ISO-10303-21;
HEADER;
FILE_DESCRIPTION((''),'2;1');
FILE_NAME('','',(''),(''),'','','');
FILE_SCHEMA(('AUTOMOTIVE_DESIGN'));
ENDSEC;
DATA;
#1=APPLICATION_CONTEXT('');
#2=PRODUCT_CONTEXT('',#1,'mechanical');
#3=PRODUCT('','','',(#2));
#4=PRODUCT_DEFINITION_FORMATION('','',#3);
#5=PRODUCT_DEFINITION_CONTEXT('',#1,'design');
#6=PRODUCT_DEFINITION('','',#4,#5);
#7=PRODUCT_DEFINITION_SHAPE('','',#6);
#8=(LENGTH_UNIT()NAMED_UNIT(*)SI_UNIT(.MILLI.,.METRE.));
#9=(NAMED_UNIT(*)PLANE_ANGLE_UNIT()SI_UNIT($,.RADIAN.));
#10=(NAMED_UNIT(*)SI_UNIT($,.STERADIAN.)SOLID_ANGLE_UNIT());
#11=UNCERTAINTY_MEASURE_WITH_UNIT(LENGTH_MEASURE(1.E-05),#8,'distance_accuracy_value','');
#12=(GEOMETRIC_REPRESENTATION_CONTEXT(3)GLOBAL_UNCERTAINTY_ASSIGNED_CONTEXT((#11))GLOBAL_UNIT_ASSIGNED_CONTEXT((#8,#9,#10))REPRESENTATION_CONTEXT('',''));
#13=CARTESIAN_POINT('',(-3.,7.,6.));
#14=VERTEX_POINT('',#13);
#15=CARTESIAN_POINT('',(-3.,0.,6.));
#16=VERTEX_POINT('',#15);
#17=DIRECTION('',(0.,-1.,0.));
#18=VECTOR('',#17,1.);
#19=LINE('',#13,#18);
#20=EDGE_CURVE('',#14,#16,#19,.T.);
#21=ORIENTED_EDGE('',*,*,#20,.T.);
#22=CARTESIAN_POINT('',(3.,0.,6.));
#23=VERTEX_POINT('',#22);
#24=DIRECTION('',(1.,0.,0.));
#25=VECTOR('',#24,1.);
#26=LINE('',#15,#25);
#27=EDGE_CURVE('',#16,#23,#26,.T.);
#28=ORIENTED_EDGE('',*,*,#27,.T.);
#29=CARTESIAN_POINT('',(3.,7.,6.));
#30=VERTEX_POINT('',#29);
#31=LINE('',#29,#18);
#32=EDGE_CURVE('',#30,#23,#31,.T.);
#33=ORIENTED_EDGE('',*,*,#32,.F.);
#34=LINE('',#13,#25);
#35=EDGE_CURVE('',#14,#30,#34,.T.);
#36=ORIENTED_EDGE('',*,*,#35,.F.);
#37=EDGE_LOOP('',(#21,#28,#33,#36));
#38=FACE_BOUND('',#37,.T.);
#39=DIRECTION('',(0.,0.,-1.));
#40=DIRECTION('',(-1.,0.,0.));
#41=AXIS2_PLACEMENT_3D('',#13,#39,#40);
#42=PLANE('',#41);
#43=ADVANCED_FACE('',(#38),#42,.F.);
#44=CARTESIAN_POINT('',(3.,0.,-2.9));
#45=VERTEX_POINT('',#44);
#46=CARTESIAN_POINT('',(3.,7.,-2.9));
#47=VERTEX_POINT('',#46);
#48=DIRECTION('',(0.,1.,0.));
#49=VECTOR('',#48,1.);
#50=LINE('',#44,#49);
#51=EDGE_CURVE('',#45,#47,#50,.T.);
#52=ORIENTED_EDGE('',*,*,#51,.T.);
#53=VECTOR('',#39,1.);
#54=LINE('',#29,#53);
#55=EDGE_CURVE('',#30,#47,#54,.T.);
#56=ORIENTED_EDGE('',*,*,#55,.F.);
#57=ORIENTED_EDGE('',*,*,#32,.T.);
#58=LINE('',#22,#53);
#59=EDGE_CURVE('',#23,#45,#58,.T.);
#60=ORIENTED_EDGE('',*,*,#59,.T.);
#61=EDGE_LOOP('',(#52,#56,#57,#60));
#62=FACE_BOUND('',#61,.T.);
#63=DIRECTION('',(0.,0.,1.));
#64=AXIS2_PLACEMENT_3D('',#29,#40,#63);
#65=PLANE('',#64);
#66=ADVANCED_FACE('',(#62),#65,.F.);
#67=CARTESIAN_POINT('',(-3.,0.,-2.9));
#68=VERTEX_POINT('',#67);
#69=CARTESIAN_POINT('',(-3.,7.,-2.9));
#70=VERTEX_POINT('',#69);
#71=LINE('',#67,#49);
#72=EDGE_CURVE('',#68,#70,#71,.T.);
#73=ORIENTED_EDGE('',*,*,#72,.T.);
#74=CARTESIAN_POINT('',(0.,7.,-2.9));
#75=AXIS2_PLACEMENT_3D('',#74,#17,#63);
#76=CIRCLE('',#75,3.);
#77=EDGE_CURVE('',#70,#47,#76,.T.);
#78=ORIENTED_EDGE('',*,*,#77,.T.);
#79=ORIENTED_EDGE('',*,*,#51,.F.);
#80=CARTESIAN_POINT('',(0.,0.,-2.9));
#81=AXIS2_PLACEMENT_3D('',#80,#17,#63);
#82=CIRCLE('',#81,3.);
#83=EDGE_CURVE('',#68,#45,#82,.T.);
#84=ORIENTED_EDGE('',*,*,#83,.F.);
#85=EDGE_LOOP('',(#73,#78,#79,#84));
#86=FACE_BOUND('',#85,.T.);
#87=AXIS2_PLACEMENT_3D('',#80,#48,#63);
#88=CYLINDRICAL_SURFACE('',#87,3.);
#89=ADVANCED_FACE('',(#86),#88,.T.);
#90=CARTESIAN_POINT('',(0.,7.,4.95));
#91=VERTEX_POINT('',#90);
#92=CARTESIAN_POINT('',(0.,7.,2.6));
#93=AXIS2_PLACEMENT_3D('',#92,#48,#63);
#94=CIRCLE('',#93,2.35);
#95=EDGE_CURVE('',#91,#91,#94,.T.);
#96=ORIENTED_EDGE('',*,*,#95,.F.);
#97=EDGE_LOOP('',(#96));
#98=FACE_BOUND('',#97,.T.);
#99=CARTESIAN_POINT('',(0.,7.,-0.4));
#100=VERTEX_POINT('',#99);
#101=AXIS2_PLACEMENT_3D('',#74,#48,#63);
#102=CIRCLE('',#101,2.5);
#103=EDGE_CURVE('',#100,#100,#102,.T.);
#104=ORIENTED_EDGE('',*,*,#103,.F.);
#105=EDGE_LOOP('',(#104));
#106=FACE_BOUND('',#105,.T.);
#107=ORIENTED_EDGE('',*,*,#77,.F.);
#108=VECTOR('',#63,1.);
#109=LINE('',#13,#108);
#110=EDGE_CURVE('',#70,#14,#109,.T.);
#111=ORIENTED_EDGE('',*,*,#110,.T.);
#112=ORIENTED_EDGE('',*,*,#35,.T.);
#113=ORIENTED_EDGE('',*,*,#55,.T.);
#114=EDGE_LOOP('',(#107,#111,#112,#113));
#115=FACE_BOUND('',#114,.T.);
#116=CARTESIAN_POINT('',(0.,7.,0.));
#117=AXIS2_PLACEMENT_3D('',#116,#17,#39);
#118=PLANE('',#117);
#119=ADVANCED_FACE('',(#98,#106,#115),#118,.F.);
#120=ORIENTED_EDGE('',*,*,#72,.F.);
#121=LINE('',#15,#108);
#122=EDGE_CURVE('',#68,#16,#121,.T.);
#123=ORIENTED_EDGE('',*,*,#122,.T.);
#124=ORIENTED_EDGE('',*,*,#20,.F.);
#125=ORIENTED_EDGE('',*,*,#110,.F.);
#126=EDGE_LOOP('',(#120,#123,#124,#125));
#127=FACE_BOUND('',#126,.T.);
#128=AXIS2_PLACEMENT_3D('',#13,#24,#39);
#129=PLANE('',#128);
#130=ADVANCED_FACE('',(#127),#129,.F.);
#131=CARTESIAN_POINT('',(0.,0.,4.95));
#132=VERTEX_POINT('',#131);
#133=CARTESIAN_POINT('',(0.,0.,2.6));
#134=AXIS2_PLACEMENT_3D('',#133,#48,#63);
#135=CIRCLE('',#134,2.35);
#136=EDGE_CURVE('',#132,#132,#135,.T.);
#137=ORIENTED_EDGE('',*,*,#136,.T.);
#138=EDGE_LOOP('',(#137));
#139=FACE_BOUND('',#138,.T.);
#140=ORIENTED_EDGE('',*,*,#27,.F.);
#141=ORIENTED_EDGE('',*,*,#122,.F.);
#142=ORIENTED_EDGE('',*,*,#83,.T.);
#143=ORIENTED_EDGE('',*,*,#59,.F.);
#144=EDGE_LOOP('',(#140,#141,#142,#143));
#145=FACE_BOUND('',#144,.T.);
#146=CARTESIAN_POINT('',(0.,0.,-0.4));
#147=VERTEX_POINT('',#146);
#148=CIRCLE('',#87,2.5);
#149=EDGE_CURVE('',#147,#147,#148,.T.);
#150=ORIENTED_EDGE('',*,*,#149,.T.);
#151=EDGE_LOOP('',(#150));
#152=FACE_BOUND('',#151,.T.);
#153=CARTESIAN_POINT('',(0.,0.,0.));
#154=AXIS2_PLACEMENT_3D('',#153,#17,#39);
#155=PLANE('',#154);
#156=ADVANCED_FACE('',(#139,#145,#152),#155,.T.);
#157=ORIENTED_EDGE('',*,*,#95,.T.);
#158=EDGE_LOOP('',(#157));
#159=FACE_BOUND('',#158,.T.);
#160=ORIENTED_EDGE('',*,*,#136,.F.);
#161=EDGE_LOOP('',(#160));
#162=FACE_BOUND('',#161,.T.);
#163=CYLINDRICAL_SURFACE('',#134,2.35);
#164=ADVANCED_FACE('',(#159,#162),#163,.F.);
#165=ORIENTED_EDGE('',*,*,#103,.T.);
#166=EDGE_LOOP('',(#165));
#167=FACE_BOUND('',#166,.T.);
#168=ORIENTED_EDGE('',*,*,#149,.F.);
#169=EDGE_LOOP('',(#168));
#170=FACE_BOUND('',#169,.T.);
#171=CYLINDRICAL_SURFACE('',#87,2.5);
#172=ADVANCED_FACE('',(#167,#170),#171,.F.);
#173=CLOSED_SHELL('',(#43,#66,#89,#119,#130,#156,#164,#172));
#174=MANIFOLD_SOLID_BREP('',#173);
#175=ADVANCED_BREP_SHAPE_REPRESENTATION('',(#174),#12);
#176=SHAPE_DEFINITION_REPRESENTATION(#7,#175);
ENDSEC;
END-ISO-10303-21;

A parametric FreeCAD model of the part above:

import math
import FreeCAD as App
import Part
import Sketcher
from FreeCAD import Vector


def add_polygon(sketch, points):
    """Adds a closed chain of lines whose ends are joined by coincident constraints."""
    first, n = sketch.GeometryCount, len(points)
    for a, b in zip(points, points[1:] + points[:1]):
        sketch.addGeometry(Part.LineSegment(App.Vector(*a, 0), App.Vector(*b, 0)), False)
    for i in range(n):
        sketch.addConstraint(Sketcher.Constraint("Coincident", first + i, 2, first + (i + 1) % n, 1))

doc = App.newDocument("Part")
body = doc.addObject("PartDesign::Body", "Body")

sketch1 = body.newObject("Sketcher::SketchObject", "Sketch")
sketch1.AttachmentSupport = (doc.getObject("XZ_Plane"), [""])
sketch1.MapMode = "FlatFace"
add_polygon(sketch1, [(-3, -6), (-3, 6), (3, 6), (3, -6)])
sketch1.addConstraint([
    Sketcher.Constraint("Vertical", 0),
    Sketcher.Constraint("Horizontal", 1),
    Sketcher.Constraint("Vertical", 2),
    Sketcher.Constraint("Horizontal", 3),
    Sketcher.Constraint("Symmetric", 0, 2, 2, 2, -1, 1),
    Sketcher.Constraint("DistanceX", 1, 1, 1, 2, 6.0),
    Sketcher.Constraint("DistanceY", 0, 1, 0, 2, 12.0),
])
pad1 = body.newObject("PartDesign::Pad", "Pad")
pad1.Profile = sketch1
pad1.Length = 7
pad1.Reversed = True

sketch2 = body.newObject("Sketcher::SketchObject", "Sketch001")
sketch2.AttachmentSupport = (doc.getObject("XZ_Plane"), [""])
sketch2.MapMode = "FlatFace"
sketch2.AttachmentOffset = App.Placement(Vector(0, 0, -7), App.Rotation())
sketch2.addGeometry([
    Part.Circle(Vector(0, 2.6, 0), Vector(0, 0, 1), 2.4),
    Part.Circle(Vector(0, -2.9, 0), Vector(0, 0, 1), 2.5),
], False)
sketch2.addConstraint([
    Sketcher.Constraint("PointOnObject", 0, 3, -2),
    Sketcher.Constraint("PointOnObject", 1, 3, -2),
    Sketcher.Constraint("Diameter", 1, 5.0),
    Sketcher.Constraint("Diameter", 0, 4.7),
    Sketcher.Constraint("DistanceY", -1, 1, 0, 3, 2.6),
    Sketcher.Constraint("DistanceY", 1, 3, -1, 1, 2.9),
])
pocket1 = body.newObject("PartDesign::Pocket", "Pocket")
pocket1.Profile = sketch2
pocket1.Type = "ThroughAll"
pocket1.Reversed = True

sketch3 = body.newObject("Sketcher::SketchObject", "Sketch002")
sketch3.AttachmentSupport = (doc.getObject("XZ_Plane"), [""])
sketch3.MapMode = "FlatFace"
sketch3.AttachmentOffset = App.Placement(Vector(0, 0, -7), App.Rotation())
sketch3.addGeometry([
    Part.LineSegment(Vector(-3, -6, 0), Vector(-3, -2.9, 0)),
    Part.ArcOfCircle(Part.Circle(Vector(0, -2.9, 0), Vector(0, 0, 1), 3), math.radians(180), math.radians(360)),
    Part.LineSegment(Vector(3, -2.9, 0), Vector(3, -6, 0)),
    Part.LineSegment(Vector(3, -6, 0), Vector(-3, -6, 0)),
], False)
sketch3.addConstraint([
    Sketcher.Constraint("Tangent", 0, 2, 1, 1),
    Sketcher.Constraint("Tangent", 1, 2, 2, 1),
    Sketcher.Constraint("Coincident", 2, 2, 3, 1),
    Sketcher.Constraint("Coincident", 3, 2, 0, 1),
    Sketcher.Constraint("Vertical", 0),
    Sketcher.Constraint("Vertical", 2),
    Sketcher.Constraint("Horizontal", 3),
    Sketcher.Constraint("PointOnObject", 1, 3, -2),
    Sketcher.Constraint("Radius", 1, 3.0),
    Sketcher.Constraint("DistanceY", 0, 1, 0, 2, 3.1),
    Sketcher.Constraint("DistanceY", 2, 2, -1, 1, 6.0),
])
pocket2 = body.newObject("PartDesign::Pocket", "Pocket001")
pocket2.Profile = sketch3
pocket2.Type = "ThroughAll"
pocket2.Reversed = True

doc.recompute()
